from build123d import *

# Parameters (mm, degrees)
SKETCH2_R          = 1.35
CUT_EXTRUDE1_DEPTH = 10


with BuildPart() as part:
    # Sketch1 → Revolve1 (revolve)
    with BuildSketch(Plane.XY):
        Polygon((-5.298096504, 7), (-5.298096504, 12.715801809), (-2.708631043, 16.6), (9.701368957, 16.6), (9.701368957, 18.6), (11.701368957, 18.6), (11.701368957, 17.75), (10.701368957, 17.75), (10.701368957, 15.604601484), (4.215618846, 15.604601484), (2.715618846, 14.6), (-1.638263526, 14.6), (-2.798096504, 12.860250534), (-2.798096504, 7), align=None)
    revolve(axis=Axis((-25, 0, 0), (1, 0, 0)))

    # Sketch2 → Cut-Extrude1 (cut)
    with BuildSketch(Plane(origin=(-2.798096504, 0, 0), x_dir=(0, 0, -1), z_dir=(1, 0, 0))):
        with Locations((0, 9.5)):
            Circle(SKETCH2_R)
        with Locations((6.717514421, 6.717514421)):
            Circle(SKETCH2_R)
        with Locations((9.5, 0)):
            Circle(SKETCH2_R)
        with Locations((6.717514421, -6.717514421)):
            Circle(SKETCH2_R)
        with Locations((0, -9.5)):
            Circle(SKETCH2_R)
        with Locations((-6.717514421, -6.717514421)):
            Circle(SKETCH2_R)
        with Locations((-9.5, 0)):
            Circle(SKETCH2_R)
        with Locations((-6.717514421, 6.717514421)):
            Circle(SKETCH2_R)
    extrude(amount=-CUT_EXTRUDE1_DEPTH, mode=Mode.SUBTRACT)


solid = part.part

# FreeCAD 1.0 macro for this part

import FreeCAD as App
import Part
import Sketcher
from FreeCAD import Vector

doc = App.newDocument("Part")
body = doc.addObject("PartDesign::Body", "Body")

sketch1 = body.newObject("Sketcher::SketchObject", "Sketch")
sketch1.AttachmentSupport = (doc.getObject("XY_Plane"), [""])
sketch1.MapMode = "FlatFace"
sketch1.addGeometry([
    Part.LineSegment(Vector(-5.298097, 12.715802, 0), Vector(-5.298097, 7, 0)),
    Part.LineSegment(Vector(-5.298097, 7, 0), Vector(-2.798097, 7, 0)),
    Part.LineSegment(Vector(-2.798097, 7, 0), Vector(-2.798097, 12.860251, 0)),
    Part.LineSegment(Vector(-2.798097, 12.860251, 0), Vector(-1.638264, 14.6, 0)),
    Part.LineSegment(Vector(-1.638264, 14.6, 0), Vector(2.715619, 14.6, 0)),
    Part.LineSegment(Vector(2.715619, 14.6, 0), Vector(4.215619, 15.604601, 0)),
    Part.LineSegment(Vector(4.215619, 15.604601, 0), Vector(10.701369, 15.604601, 0)),
    Part.LineSegment(Vector(10.701369, 15.604601, 0), Vector(10.701369, 17.75, 0)),
    Part.LineSegment(Vector(10.701369, 17.75, 0), Vector(11.701369, 17.75, 0)),
    Part.LineSegment(Vector(11.701369, 17.75, 0), Vector(11.701369, 18.6, 0)),
    Part.LineSegment(Vector(11.701369, 18.6, 0), Vector(9.701369, 18.6, 0)),
    Part.LineSegment(Vector(9.701369, 18.6, 0), Vector(9.701369, 16.6, 0)),
    Part.LineSegment(Vector(9.701369, 16.6, 0), Vector(-2.708631, 16.6, 0)),
    Part.LineSegment(Vector(-2.708631, 16.6, 0), Vector(-5.298097, 12.715802, 0)),
], False)
sketch1.addConstraint([
    Sketcher.Constraint("Coincident", 0, 2, 1, 1),
    Sketcher.Constraint("Coincident", 1, 2, 2, 1),
    Sketcher.Constraint("Coincident", 2, 2, 3, 1),
    Sketcher.Constraint("Coincident", 3, 2, 4, 1),
    Sketcher.Constraint("Coincident", 4, 2, 5, 1),
    Sketcher.Constraint("Coincident", 5, 2, 6, 1),
    Sketcher.Constraint("Coincident", 6, 2, 7, 1),
    Sketcher.Constraint("Coincident", 7, 2, 8, 1),
    Sketcher.Constraint("Coincident", 8, 2, 9, 1),
    Sketcher.Constraint("Coincident", 9, 2, 10, 1),
    Sketcher.Constraint("Coincident", 10, 2, 11, 1),
    Sketcher.Constraint("Coincident", 11, 2, 12, 1),
    Sketcher.Constraint("Coincident", 12, 2, 13, 1),
    Sketcher.Constraint("Coincident", 13, 2, 0, 1),
    Sketcher.Constraint("Vertical", 0),
    Sketcher.Constraint("Horizontal", 1),
    Sketcher.Constraint("Vertical", 2),
    Sketcher.Constraint("Horizontal", 4),
    Sketcher.Constraint("Horizontal", 6),
    Sketcher.Constraint("Vertical", 7),
    Sketcher.Constraint("Horizontal", 8),
    Sketcher.Constraint("Vertical", 9),
    Sketcher.Constraint("Horizontal", 10),
    Sketcher.Constraint("Vertical", 11),
    Sketcher.Constraint("Horizontal", 12),
    Sketcher.Constraint("Parallel", 3, 13),
    Sketcher.Constraint("Equal", 10, 11),
    Sketcher.Constraint("DistanceX", 8, 1, 8, 2, 1.0),
    Sketcher.Constraint("DistanceX", 10, 2, 10, 1, 2.0),
    Sketcher.Constraint("DistanceX", 1, 1, 1, 2, 2.5),
    Sketcher.Constraint("DistanceY", -1, 1, 0, 2, 7.0),
    Sketcher.Constraint("DistanceY", 4, 2, 9, 2, 4.0),
    Sketcher.Constraint("DistanceX", 12, 2, 12, 1, 12.41),
    Sketcher.Constraint("DistanceY", 9, 1, 9, 2, 0.85),
    Sketcher.Constraint("DistanceY", -1, 1, 3, 2, 14.6),
    Sketcher.Constraint("DistanceX", 4, 2, 5, 2, 1.5),
    Sketcher.Constraint("DistanceY", 0, 2, 0, 1, 5.715802),
    Sketcher.Constraint("DistanceY", 7, 1, 7, 2, 2.145399),
    Sketcher.Constraint("DistanceX", 6, 1, 6, 2, 6.48575),
    Sketcher.Constraint("DistanceY", 2, 1, 2, 2, 5.860251),
    Sketcher.Constraint("Distance", 3, 2.090919),
    Sketcher.Constraint("DistanceX", -1, 1, 4, 2, 2.715619),
])
revolution = body.newObject("PartDesign::Revolution", "Revolution")
revolution.Profile = sketch1
revolution.ReferenceAxis = (sketch1, ["H_Axis"])
revolution.Angle = 360

sketch2 = body.newObject("Sketcher::SketchObject", "Sketch001")
sketch2.AttachmentSupport = (doc.getObject("YZ_Plane"), [""])
sketch2.MapMode = "FlatFace"
sketch2.AttachmentOffset = App.Placement(Vector(0, 0, -2.798097), App.Rotation())
sketch2.addGeometry([
    Part.Circle(Vector(9.5, 0, 0), Vector(0, 0, 1), 1.35),
    Part.Circle(Vector(6.717514, -6.717514, 0), Vector(0, 0, 1), 1.35),
    Part.Circle(Vector(0, -9.5, 0), Vector(0, 0, 1), 1.35),
    Part.Circle(Vector(-6.717514, -6.717514, 0), Vector(0, 0, 1), 1.35),
    Part.Circle(Vector(-9.5, 0, 0), Vector(0, 0, 1), 1.35),
    Part.Circle(Vector(-6.717514, 6.717514, 0), Vector(0, 0, 1), 1.35),
    Part.Circle(Vector(0, 9.5, 0), Vector(0, 0, 1), 1.35),
    Part.Circle(Vector(6.717514, 6.717514, 0), Vector(0, 0, 1), 1.35),
], False)
sketch2.addConstraint([
    Sketcher.Constraint("Equal", 0, 1),
    Sketcher.Constraint("Equal", 1, 2),
    Sketcher.Constraint("Equal", 2, 3),
    Sketcher.Constraint("Equal", 3, 4),
    Sketcher.Constraint("Equal", 4, 5),
    Sketcher.Constraint("Equal", 5, 6),
    Sketcher.Constraint("Equal", 6, 7),
    Sketcher.Constraint("Symmetric", 0, 3, 4, 3, -1, 1),
    Sketcher.Constraint("Symmetric", 1, 3, 5, 3, -1, 1),
    Sketcher.Constraint("Symmetric", 2, 3, 6, 3, -1, 1),
    Sketcher.Constraint("Symmetric", 3, 3, 7, 3, -1, 1),
    Sketcher.Constraint("Symmetric", 1, 3, 3, 3, -2),
    Sketcher.Constraint("PointOnObject", 0, 3, -1),
    Sketcher.Constraint("PointOnObject", 2, 3, -2),
    Sketcher.Constraint("Diameter", 0, 2.7),
    Sketcher.Constraint("DistanceX", 4, 3, 0, 3, 19.0),
    Sketcher.Constraint("DistanceY", 2, 3, -1, 1, 9.5),
    Sketcher.Constraint("DistanceX", 3, 3, 1, 3, 13.435029),
    Sketcher.Constraint("DistanceY", 3, 3, 5, 3, 13.435029),
])
pocket1 = body.newObject("PartDesign::Pocket", "Pocket")
pocket1.Profile = sketch2
pocket1.Length = 10

doc.recompute()
